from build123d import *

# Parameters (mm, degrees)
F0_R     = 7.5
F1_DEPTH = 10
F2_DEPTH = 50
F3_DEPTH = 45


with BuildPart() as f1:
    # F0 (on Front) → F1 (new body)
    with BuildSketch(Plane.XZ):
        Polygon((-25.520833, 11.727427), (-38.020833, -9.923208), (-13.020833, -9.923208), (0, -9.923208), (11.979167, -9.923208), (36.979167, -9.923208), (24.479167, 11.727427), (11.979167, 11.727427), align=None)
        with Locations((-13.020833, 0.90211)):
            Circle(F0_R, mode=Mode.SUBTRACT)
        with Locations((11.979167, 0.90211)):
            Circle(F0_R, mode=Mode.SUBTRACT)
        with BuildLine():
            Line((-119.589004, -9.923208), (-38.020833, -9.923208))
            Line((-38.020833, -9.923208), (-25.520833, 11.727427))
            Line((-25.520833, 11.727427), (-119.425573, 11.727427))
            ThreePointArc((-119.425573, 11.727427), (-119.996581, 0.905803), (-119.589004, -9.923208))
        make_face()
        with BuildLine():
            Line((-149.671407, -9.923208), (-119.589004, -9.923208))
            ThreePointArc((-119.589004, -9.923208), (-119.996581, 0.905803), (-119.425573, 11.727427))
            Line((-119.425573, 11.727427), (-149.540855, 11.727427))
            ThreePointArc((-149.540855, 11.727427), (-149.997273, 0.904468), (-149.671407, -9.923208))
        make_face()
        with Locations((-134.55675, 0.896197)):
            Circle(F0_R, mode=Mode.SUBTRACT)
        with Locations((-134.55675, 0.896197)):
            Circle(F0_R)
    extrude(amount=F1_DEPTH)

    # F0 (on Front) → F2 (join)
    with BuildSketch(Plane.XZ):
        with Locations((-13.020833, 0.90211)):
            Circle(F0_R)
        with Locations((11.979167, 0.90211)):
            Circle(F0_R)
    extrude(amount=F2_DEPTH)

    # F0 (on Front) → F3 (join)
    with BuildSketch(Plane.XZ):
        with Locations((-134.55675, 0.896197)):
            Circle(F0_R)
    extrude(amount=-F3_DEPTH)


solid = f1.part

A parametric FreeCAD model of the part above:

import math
import FreeCAD as App
import Part
import Sketcher
Q = App.Units.Quantity

doc = App.newDocument("Part")
params = doc.addObject("Spreadsheet::Sheet", "Params")
for row, (alias, value) in enumerate([
    ("sketch1_diameter", "15 mm"),
    ("sketch1_length", "25 mm"),
    ("pad1_length", "10 mm"),
    ("sketch2_diameter", "15 mm"),
    ("pad2_length", "50 mm"),
    ("sketch3_diameter", "15 mm"),
    ("pad3_length", "45 mm"),
], start=1):
    params.set(f"A{row}", alias)
    params.set(f"B{row}", "=" + value)
    params.setAlias(f"B{row}", alias)

body = doc.addObject("PartDesign::Body", "Body")

# Sketch on XZ plane
sketch1 = body.newObject("Sketcher::SketchObject", "Sketch")
sketch1.AttachmentSupport = (doc.getObject("XZ_Plane"), [""])
sketch1.MapMode = "FlatFace"
sketch1.addGeometry(Part.LineSegment(App.Vector(24.479167, 11.727427, 0), App.Vector(-149.540855, 11.727427, 0)), False)
sketch1.addGeometry(Part.ArcOfCircle(Part.Circle(App.Vector(0.000031, -0.000006, 0), App.Vector(0, 0, 1), 150.000031), math.radians(175.515875), math.radians(183.793153)), False)
sketch1.addGeometry(Part.LineSegment(App.Vector(-149.671407, -9.923208, 0), App.Vector(36.979167, -9.923208, 0)), False)
sketch1.addGeometry(Part.LineSegment(App.Vector(36.979167, -9.923208, 0), App.Vector(24.479167, 11.727427, 0)), False)
sketch1.addGeometry(Part.Circle(App.Vector(-13.020833, 0.90211, 0), App.Vector(0, 0, 1), 7.5), False)
sketch1.addGeometry(Part.Circle(App.Vector(11.979167, 0.90211, 0), App.Vector(0, 0, 1), 7.5), False)
sketch1.addConstraint(Sketcher.Constraint("Coincident", 0, 2, 1, 1))
sketch1.addConstraint(Sketcher.Constraint("Coincident", 1, 2, 2, 1))
sketch1.addConstraint(Sketcher.Constraint("Coincident", 2, 2, 3, 1))
sketch1.addConstraint(Sketcher.Constraint("Coincident", 3, 2, 0, 1))
sketch1.addConstraint(Sketcher.Constraint("Horizontal", 0))
sketch1.addConstraint(Sketcher.Constraint("Horizontal", 2))
sketch1.addConstraint(Sketcher.Constraint("Equal", 4, 5))
sketch1.addConstraint(Sketcher.Constraint("Horizontal", 4, 3, 5, 3))
sketch1.addConstraint(Sketcher.Constraint("Diameter", 4, Q("15 mm")))
sketch1.addConstraint(Sketcher.Constraint("Angle", 3, Q("120 deg")))
sketch1.addConstraint(Sketcher.Constraint("Distance", 3, Q("25 mm")))
sketch1.addConstraint(Sketcher.Constraint("DistanceX", 4, 3, 5, 3, Q("25 mm")))
sketch1.addConstraint(Sketcher.Constraint("DistanceX", 5, 3, 2, 2, Q("25 mm")))
sketch1.addConstraint(Sketcher.Constraint("Radius", 1, Q("150.000031 mm")))
sketch1.addConstraint(Sketcher.Constraint("DistanceX", 0, 2, 0, 1, Q("174.020022 mm")))
sketch1.addConstraint(Sketcher.Constraint("DistanceY", 1, 2, 1, 3, Q("9.923202 mm")))
sketch1.addConstraint(Sketcher.Constraint("DistanceY", -1, 1, 4, 3, Q("0.90211 mm")))
sketch1.addConstraint(Sketcher.Constraint("DistanceY", 1, 2, -1, 1, Q("9.923208 mm")))
sketch1.addConstraint(Sketcher.Constraint("DistanceX", 4, 3, -1, 1, Q("13.020833 mm")))
sketch1.setExpression("Constraints[8]", "Params.sketch1_diameter")
sketch1.setExpression("Constraints[10]", "Params.sketch1_length")
pad1 = body.newObject("PartDesign::Pad", "Pad")
pad1.Profile = sketch1
pad1.setExpression("Length", "Params.pad1_length")

# Sketch on XZ plane
sketch2 = body.newObject("Sketcher::SketchObject", "Sketch001")
sketch2.AttachmentSupport = (doc.getObject("XZ_Plane"), [""])
sketch2.MapMode = "FlatFace"
sketch2.addGeometry(Part.Circle(App.Vector(-13.020833, 0.90211, 0), App.Vector(0, 0, 1), 7.5), False)
sketch2.addGeometry(Part.Circle(App.Vector(11.979167, 0.90211, 0), App.Vector(0, 0, 1), 7.5), False)
sketch2.addConstraint(Sketcher.Constraint("Equal", 0, 1))
sketch2.addConstraint(Sketcher.Constraint("Horizontal", 0, 3, 1, 3))
sketch2.addConstraint(Sketcher.Constraint("Diameter", 0, Q("15 mm")))
sketch2.addConstraint(Sketcher.Constraint("DistanceX", 0, 3, 1, 3, Q("25 mm")))
sketch2.addConstraint(Sketcher.Constraint("DistanceY", -1, 1, 0, 3, Q("0.90211 mm")))
sketch2.addConstraint(Sketcher.Constraint("DistanceX", 0, 3, -1, 1, Q("13.020833 mm")))
sketch2.setExpression("Constraints[2]", "Params.sketch2_diameter")
pad2 = body.newObject("PartDesign::Pad", "Pad001")
pad2.Profile = sketch2
pad2.setExpression("Length", "Params.pad2_length")

# Sketch on XZ plane
sketch3 = body.newObject("Sketcher::SketchObject", "Sketch002")
sketch3.AttachmentSupport = (doc.getObject("XZ_Plane"), [""])
sketch3.MapMode = "FlatFace"
sketch3.addGeometry(Part.Circle(App.Vector(-134.55675, 0.896197, 0), App.Vector(0, 0, 1), 7.5), False)
sketch3.addConstraint(Sketcher.Constraint("Diameter", 0, Q("15 mm")))
sketch3.addConstraint(Sketcher.Constraint("DistanceX", 0, 3, -1, 1, Q("134.55675 mm")))
sketch3.addConstraint(Sketcher.Constraint("DistanceY", -1, 1, 0, 3, Q("0.896197 mm")))
sketch3.setExpression("Constraints[0]", "Params.sketch3_diameter")
pad3 = body.newObject("PartDesign::Pad", "Pad002")
pad3.Profile = sketch3
pad3.setExpression("Length", "Params.pad3_length")
pad3.Reversed = True

doc.recompute()
